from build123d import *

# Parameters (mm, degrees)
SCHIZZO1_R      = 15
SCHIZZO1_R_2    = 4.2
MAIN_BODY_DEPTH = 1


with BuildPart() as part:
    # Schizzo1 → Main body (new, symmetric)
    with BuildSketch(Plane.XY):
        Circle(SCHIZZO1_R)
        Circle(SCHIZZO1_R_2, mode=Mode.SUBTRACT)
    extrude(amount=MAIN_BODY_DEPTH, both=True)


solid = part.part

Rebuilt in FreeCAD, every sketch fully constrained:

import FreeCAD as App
import Part
import Sketcher

V = App.Vector

doc = App.newDocument("Part")
body = doc.addObject("PartDesign::Body", "Body")

sketch1 = body.newObject("Sketcher::SketchObject", "Sketch")
sketch1.AttachmentSupport = (doc.getObject("XY_Plane"), [""])
sketch1.MapMode = "FlatFace"
sketch1.addGeometry([
    Part.Circle(V(0, 0, 0), V(0, 0, 1), 15),
    Part.Circle(V(0, 0, 0), V(0, 0, 1), 4.2),
], False)
sketch1.addConstraint([
    Sketcher.Constraint("Coincident", 0, 3, -1, 1),
    Sketcher.Constraint("Coincident", 1, 3, -1, 1),
    Sketcher.Constraint("Diameter", 0, 30.0),
    Sketcher.Constraint("Diameter", 1, 8.4),
])
pad1 = body.newObject("PartDesign::Pad", "Pad")
pad1.Profile = sketch1
pad1.Length = 2
pad1.Midplane = True

doc.recompute()
